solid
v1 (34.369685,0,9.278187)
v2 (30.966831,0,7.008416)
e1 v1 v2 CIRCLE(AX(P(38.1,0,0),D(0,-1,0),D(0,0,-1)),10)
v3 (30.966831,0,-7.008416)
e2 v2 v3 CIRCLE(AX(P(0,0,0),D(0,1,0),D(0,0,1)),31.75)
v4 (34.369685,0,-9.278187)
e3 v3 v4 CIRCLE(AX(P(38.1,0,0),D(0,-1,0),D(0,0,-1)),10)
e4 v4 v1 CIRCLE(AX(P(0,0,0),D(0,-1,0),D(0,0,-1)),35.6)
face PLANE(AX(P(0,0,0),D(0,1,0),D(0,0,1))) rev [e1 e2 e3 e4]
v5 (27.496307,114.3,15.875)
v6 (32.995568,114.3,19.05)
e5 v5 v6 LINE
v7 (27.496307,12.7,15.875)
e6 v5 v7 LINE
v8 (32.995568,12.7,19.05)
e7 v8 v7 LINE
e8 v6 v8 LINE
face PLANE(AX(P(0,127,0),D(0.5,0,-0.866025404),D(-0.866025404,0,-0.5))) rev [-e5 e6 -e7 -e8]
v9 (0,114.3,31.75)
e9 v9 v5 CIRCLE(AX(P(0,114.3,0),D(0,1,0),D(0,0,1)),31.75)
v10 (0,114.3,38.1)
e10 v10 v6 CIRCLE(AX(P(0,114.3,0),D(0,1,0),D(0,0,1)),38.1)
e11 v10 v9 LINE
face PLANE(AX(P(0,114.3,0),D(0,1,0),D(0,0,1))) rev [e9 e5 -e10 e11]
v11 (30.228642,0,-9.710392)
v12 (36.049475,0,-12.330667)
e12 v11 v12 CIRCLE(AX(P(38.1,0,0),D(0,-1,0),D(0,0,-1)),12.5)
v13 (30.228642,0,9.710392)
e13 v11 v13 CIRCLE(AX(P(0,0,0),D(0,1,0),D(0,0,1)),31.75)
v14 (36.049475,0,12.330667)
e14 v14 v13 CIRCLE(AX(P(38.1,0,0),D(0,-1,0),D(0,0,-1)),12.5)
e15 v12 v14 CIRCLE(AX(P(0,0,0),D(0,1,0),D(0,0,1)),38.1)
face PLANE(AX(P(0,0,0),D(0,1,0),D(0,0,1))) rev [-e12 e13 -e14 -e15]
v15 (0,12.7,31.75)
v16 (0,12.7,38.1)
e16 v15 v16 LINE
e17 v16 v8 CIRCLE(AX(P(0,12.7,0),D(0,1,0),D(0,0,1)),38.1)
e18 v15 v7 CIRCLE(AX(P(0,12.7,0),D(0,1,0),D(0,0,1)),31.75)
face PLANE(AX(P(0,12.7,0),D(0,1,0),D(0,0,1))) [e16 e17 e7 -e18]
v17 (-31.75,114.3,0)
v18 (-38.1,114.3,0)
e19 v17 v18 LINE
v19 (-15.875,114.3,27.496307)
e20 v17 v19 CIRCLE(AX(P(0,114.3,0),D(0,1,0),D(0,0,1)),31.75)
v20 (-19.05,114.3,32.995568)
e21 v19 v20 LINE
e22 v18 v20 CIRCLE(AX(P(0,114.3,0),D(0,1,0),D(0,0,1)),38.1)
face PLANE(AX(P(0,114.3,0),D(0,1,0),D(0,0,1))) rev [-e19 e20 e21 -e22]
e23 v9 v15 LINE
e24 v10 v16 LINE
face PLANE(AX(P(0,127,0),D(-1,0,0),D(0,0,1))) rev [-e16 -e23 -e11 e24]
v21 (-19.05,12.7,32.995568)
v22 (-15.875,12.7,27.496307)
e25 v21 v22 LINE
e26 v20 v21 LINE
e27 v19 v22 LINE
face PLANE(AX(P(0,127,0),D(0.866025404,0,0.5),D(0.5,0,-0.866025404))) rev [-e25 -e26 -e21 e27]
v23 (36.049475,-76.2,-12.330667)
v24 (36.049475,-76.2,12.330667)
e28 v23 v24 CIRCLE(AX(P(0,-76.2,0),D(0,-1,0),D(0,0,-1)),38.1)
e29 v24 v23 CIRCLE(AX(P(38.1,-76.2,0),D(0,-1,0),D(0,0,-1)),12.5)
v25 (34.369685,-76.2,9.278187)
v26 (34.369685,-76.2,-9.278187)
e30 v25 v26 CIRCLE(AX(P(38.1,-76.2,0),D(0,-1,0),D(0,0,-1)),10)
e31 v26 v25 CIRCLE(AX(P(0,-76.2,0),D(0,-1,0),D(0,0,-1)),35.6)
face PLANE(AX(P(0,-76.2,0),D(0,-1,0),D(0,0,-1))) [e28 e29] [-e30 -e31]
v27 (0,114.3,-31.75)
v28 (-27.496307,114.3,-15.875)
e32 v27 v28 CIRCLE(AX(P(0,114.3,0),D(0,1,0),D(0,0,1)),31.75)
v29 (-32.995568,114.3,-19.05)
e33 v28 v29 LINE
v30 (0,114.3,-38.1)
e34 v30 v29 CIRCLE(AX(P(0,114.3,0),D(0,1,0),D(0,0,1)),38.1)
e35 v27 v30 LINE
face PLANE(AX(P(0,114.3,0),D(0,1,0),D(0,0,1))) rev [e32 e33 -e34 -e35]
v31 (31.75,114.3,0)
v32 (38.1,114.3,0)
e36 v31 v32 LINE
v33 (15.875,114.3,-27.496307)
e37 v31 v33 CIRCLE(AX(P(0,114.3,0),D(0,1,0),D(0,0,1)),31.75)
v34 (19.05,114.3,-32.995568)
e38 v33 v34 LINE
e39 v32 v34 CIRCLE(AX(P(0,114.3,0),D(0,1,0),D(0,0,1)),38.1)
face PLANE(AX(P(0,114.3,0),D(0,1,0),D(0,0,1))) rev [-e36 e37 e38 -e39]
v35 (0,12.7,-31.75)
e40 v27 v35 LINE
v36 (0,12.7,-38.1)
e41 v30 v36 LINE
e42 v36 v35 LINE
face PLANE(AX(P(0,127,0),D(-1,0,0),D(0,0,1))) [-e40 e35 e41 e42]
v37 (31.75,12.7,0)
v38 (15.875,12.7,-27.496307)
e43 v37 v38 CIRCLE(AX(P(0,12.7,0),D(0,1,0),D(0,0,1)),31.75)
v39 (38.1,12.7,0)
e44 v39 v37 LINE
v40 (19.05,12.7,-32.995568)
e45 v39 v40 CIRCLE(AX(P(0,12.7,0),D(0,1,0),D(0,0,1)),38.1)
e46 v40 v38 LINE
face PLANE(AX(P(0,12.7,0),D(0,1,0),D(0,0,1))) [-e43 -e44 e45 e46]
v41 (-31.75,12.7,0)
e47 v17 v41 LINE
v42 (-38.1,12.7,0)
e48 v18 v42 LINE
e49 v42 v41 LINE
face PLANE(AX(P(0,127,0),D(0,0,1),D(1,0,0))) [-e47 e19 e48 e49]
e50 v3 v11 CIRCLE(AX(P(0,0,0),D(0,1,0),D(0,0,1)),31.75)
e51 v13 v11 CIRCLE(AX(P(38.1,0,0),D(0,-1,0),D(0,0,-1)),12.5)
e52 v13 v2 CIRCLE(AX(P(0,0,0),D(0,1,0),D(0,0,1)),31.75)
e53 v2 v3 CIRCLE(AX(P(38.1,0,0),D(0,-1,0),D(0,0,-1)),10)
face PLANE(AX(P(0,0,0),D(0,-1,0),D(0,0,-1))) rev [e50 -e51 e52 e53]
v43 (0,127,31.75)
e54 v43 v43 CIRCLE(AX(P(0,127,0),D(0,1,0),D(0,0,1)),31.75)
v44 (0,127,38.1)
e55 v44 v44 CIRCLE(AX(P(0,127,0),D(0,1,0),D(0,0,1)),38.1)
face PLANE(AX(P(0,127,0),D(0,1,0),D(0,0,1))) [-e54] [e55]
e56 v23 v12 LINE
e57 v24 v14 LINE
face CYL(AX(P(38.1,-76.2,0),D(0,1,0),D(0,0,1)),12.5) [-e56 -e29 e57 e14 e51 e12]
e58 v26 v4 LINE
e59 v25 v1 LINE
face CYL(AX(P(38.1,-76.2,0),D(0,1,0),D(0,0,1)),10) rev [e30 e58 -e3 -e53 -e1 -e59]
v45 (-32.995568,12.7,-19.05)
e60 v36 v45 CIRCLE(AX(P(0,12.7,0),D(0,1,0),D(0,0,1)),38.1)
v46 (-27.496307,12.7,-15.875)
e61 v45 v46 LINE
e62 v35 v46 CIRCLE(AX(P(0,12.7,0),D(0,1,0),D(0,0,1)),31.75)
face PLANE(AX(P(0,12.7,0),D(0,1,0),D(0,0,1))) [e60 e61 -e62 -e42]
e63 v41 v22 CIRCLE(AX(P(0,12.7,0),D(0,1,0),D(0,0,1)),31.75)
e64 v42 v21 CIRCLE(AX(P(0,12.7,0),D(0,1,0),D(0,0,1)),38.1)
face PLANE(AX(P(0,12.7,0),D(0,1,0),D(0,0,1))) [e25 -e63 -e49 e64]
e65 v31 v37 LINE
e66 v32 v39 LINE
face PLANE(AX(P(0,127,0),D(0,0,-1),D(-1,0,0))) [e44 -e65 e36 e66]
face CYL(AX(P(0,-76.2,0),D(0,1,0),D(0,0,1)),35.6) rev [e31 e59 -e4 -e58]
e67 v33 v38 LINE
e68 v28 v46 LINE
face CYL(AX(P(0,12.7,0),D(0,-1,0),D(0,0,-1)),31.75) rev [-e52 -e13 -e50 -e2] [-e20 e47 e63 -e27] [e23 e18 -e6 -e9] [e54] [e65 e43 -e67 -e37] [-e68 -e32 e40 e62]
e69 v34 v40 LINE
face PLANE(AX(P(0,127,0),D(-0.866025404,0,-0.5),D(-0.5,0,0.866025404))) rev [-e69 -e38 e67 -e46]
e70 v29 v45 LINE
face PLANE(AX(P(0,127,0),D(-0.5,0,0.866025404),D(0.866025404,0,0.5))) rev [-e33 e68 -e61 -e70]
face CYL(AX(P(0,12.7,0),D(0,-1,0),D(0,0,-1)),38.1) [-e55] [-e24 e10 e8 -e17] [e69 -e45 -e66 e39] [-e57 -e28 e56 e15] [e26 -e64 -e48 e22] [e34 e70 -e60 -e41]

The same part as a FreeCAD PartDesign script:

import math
import FreeCAD as App
import Part
import Sketcher
Q = App.Units.Quantity

doc = App.newDocument("Part")
params = doc.addObject("Spreadsheet::Sheet", "Params")
for row, (alias, value) in enumerate([
    ("sketch1_radius", "1.5 in"),
    ("sketch1_radius2", "1.25 in"),
    ("pad1_length", "0.5 in"),
    ("sketch2_radius", "1.5 in"),
    ("sketch2_radius2", "1.25 in"),
    ("pad2_length", "5 in"),
    ("sketch3_diameter", "3 in"),
    ("sketch3_diameter2", "2.5 in"),
    ("pad3_length", "0.5 in"),
    ("sketch4_radius", "1.5 in"),
    ("pad4_length", "3 in"),
], start=1):
    params.set(f"A{row}", alias)
    params.set(f"B{row}", "=" + value)
    params.setAlias(f"B{row}", alias)

body = doc.addObject("PartDesign::Body", "Body")

sketch1 = body.newObject("Sketcher::SketchObject", "Sketch")
sketch1.AttachmentSupport = (doc.getObject("XZ_Plane"), [""])
sketch1.MapMode = "FlatFace"
sketch1.addGeometry([
    Part.ArcOfCircle(Part.Circle(App.Vector(0, 0, 0), App.Vector(0, 0, 1), 38), math.radians(120), math.radians(180)),
    Part.ArcOfCircle(Part.Circle(App.Vector(0, 0, 0), App.Vector(0, 0, 1), 38), math.radians(90), math.radians(120)),
    Part.ArcOfCircle(Part.Circle(App.Vector(0, 0, 0), App.Vector(0, 0, 1), 38), math.radians(30), math.radians(90)),
    Part.ArcOfCircle(Part.Circle(App.Vector(0, 0, 0), App.Vector(0, 0, 1), 38), math.radians(0), math.radians(30)),
    Part.ArcOfCircle(Part.Circle(App.Vector(0, 0, 0), App.Vector(0, 0, 1), 38), math.radians(-60), math.radians(0)),
    Part.ArcOfCircle(Part.Circle(App.Vector(0, 0, 0), App.Vector(0, 0, 1), 38), math.radians(-90), math.radians(-60)),
    Part.ArcOfCircle(Part.Circle(App.Vector(0, 0, 0), App.Vector(0, 0, 1), 38), math.radians(-150), math.radians(-90)),
    Part.ArcOfCircle(Part.Circle(App.Vector(0, 0, 0), App.Vector(0, 0, 1), 38), math.radians(180), math.radians(210)),
    Part.ArcOfCircle(Part.Circle(App.Vector(0, 0, 0), App.Vector(0, 0, 1), 32), math.radians(-60), math.radians(0)),
    Part.ArcOfCircle(Part.Circle(App.Vector(0, 0, 0), App.Vector(0, 0, 1), 32), math.radians(0), math.radians(30)),
    Part.ArcOfCircle(Part.Circle(App.Vector(0, 0, 0), App.Vector(0, 0, 1), 32), math.radians(30), math.radians(90)),
    Part.ArcOfCircle(Part.Circle(App.Vector(0, 0, 0), App.Vector(0, 0, 1), 32), math.radians(90), math.radians(120)),
    Part.ArcOfCircle(Part.Circle(App.Vector(0, 0, 0), App.Vector(0, 0, 1), 32), math.radians(120), math.radians(180)),
    Part.ArcOfCircle(Part.Circle(App.Vector(0, 0, 0), App.Vector(0, 0, 1), 32), math.radians(180), math.radians(210)),
    Part.ArcOfCircle(Part.Circle(App.Vector(0, 0, 0), App.Vector(0, 0, 1), 32), math.radians(-150), math.radians(-90)),
    Part.ArcOfCircle(Part.Circle(App.Vector(0, 0, 0), App.Vector(0, 0, 1), 32), math.radians(-90), math.radians(-60)),
], False)
sketch1.addConstraint([
    Sketcher.Constraint("Tangent", 0, 1, 1, 2),
    Sketcher.Constraint("Tangent", 1, 1, 2, 2),
    Sketcher.Constraint("Tangent", 2, 1, 3, 2),
    Sketcher.Constraint("Tangent", 3, 1, 4, 2),
    Sketcher.Constraint("Tangent", 4, 1, 5, 2),
    Sketcher.Constraint("Tangent", 5, 1, 6, 2),
    Sketcher.Constraint("Tangent", 6, 1, 7, 2),
    Sketcher.Constraint("Tangent", 7, 1, 0, 2),
    Sketcher.Constraint("Tangent", 8, 2, 9, 1),
    Sketcher.Constraint("Tangent", 9, 2, 10, 1),
    Sketcher.Constraint("Tangent", 10, 2, 11, 1),
    Sketcher.Constraint("Tangent", 11, 2, 12, 1),
    Sketcher.Constraint("Tangent", 12, 2, 13, 1),
    Sketcher.Constraint("Tangent", 13, 2, 14, 1),
    Sketcher.Constraint("Tangent", 14, 2, 15, 1),
    Sketcher.Constraint("Tangent", 15, 2, 8, 1),
    Sketcher.Constraint("Coincident", 0, 3, -1, 1),
    Sketcher.Constraint("Coincident", 2, 3, -1, 1),
    Sketcher.Constraint("Coincident", 4, 3, -1, 1),
    Sketcher.Constraint("Coincident", 8, 3, -1, 1),
    Sketcher.Constraint("Coincident", 10, 3, -1, 1),
    Sketcher.Constraint("Coincident", 12, 3, -1, 1),
    Sketcher.Constraint("Equal", 4, 5),
    Sketcher.Constraint("Equal", 12, 13),
    Sketcher.Constraint("PointOnObject", 1, 1, -2),
    Sketcher.Constraint("PointOnObject", 3, 1, -1),
    Sketcher.Constraint("PointOnObject", 5, 1, -2),
    Sketcher.Constraint("PointOnObject", 7, 1, -1),
    Sketcher.Constraint("PointOnObject", 8, 2, -1),
    Sketcher.Constraint("PointOnObject", 10, 2, -2),
    Sketcher.Constraint("PointOnObject", 12, 2, -1),
    Sketcher.Constraint("PointOnObject", 14, 2, -2),
    Sketcher.Constraint("Radius", 0, Q("1.5 in")),
    Sketcher.Constraint("Radius", 8, Q("1.25 in")),
    Sketcher.Constraint("DistanceX", 0, 1, -1, 1, Q("0.75 in")),
    Sketcher.Constraint("DistanceY", -1, 1, 2, 1, Q("0.75 in")),
    Sketcher.Constraint("DistanceX", -1, 1, 4, 1, Q("0.75 in")),
    Sketcher.Constraint("DistanceY", 6, 1, -1, 1, Q("0.75 in")),
    Sketcher.Constraint("DistanceY", -1, 1, 9, 2, Q("0.625 in")),
    Sketcher.Constraint("DistanceX", 11, 2, -1, 1, Q("0.625 in")),
    Sketcher.Constraint("DistanceY", 13, 2, -1, 1, Q("0.625 in")),
    Sketcher.Constraint("DistanceX", -1, 1, 15, 2, Q("0.625 in")),
])
sketch1.setExpression("Constraints[32]", "Params.sketch1_radius")
sketch1.setExpression("Constraints[33]", "Params.sketch1_radius2")
pad1 = body.newObject("PartDesign::Pad", "Pad")
pad1.Profile = sketch1
pad1.setExpression("Length", "Params.pad1_length")
pad1.Reversed = True

sketch2 = body.newObject("Sketcher::SketchObject", "Sketch001")
sketch2.AttachmentSupport = (doc.getObject("XZ_Plane"), [""])
sketch2.MapMode = "FlatFace"
sketch2.addGeometry([
    Part.ArcOfCircle(Part.Circle(App.Vector(0, 0, 0), App.Vector(0, 0, 1), 38), math.radians(90), math.radians(120)),
    Part.LineSegment(App.Vector(0, 38, 0), App.Vector(0, 32, 0)),
    Part.ArcOfCircle(Part.Circle(App.Vector(0, 0, 0), App.Vector(0, 0, 1), 32), math.radians(90), math.radians(120)),
    Part.LineSegment(App.Vector(-16, 27, 0), App.Vector(-19, 33, 0)),
    Part.LineSegment(App.Vector(27, 16, 0), App.Vector(33, 19, 0)),
    Part.ArcOfCircle(Part.Circle(App.Vector(0, 0, 0), App.Vector(0, 0, 1), 38), math.radians(0), math.radians(30)),
    Part.LineSegment(App.Vector(38, 0, 0), App.Vector(32, 0, 0)),
    Part.ArcOfCircle(Part.Circle(App.Vector(0, 0, 0), App.Vector(0, 0, 1), 32), math.radians(0), math.radians(30)),
    Part.LineSegment(App.Vector(16, -27, 0), App.Vector(19, -33, 0)),
    Part.ArcOfCircle(Part.Circle(App.Vector(0, 0, 0), App.Vector(0, 0, 1), 38), math.radians(-90), math.radians(-60)),
    Part.LineSegment(App.Vector(0, -38, 0), App.Vector(0, -32, 0)),
    Part.ArcOfCircle(Part.Circle(App.Vector(0, 0, 0), App.Vector(0, 0, 1), 32), math.radians(-90), math.radians(-60)),
    Part.ArcOfCircle(Part.Circle(App.Vector(0, 0, 0), App.Vector(0, 0, 1), 38), math.radians(180), math.radians(210)),
    Part.LineSegment(App.Vector(-38, 0, 0), App.Vector(-32, 0, 0)),
    Part.ArcOfCircle(Part.Circle(App.Vector(0, 0, 0), App.Vector(0, 0, 1), 32), math.radians(180), math.radians(210)),
    Part.LineSegment(App.Vector(-27, -16, 0), App.Vector(-33, -19, 0)),
], False)
sketch2.addConstraint([
    Sketcher.Constraint("Coincident", 0, 1, 1, 1),
    Sketcher.Constraint("Coincident", 1, 2, 2, 1),
    Sketcher.Constraint("Coincident", 2, 2, 3, 1),
    Sketcher.Constraint("Coincident", 3, 2, 0, 2),
    Sketcher.Constraint("Coincident", 4, 2, 5, 2),
    Sketcher.Constraint("Coincident", 5, 1, 6, 1),
    Sketcher.Constraint("Coincident", 6, 2, 7, 1),
    Sketcher.Constraint("Coincident", 7, 2, 4, 1),
    Sketcher.Constraint("Coincident", 8, 2, 9, 2),
    Sketcher.Constraint("Coincident", 9, 1, 10, 1),
    Sketcher.Constraint("Coincident", 10, 2, 11, 1),
    Sketcher.Constraint("Coincident", 11, 2, 8, 1),
    Sketcher.Constraint("Coincident", 12, 1, 13, 1),
    Sketcher.Constraint("Coincident", 13, 2, 14, 1),
    Sketcher.Constraint("Coincident", 14, 2, 15, 1),
    Sketcher.Constraint("Coincident", 15, 2, 12, 2),
    Sketcher.Constraint("Vertical", 1),
    Sketcher.Constraint("Horizontal", 6),
    Sketcher.Constraint("Vertical", 10),
    Sketcher.Constraint("Horizontal", 13),
    Sketcher.Constraint("Coincident", 0, 3, -1, 1),
    Sketcher.Constraint("Coincident", 2, 3, -1, 1),
    Sketcher.Constraint("Coincident", 5, 3, -1, 1),
    Sketcher.Constraint("Coincident", 7, 3, -1, 1),
    Sketcher.Constraint("Coincident", 9, 3, -1, 1),
    Sketcher.Constraint("Coincident", 11, 3, -1, 1),
    Sketcher.Constraint("Coincident", 12, 3, -1, 1),
    Sketcher.Constraint("Coincident", 14, 3, -1, 1),
    Sketcher.Constraint("Equal", 0, 5),
    Sketcher.Constraint("Equal", 2, 7),
    Sketcher.Constraint("Equal", 5, 9),
    Sketcher.Constraint("Equal", 7, 11),
    Sketcher.Constraint("Equal", 9, 12),
    Sketcher.Constraint("Equal", 11, 14),
    Sketcher.Constraint("PointOnObject", 0, 1, -2),
    Sketcher.Constraint("PointOnObject", 5, 1, -1),
    Sketcher.Constraint("PointOnObject", 9, 1, -2),
    Sketcher.Constraint("PointOnObject", 12, 1, -1),
    Sketcher.Constraint("Perpendicular", 3, 4),
    Sketcher.Constraint("Perpendicular", 4, 8),
    Sketcher.Constraint("Perpendicular", 8, 15),
    Sketcher.Constraint("Radius", 0, Q("1.5 in")),
    Sketcher.Constraint("Radius", 2, Q("1.25 in")),
    Sketcher.Constraint("Angle", 3, Q("120 deg")),
    Sketcher.Constraint("DistanceY", 4, 2, 1, 2, Q("0.5 in")),
    Sketcher.Constraint("DistanceX", 8, 2, 6, 2, Q("0.5 in")),
    Sketcher.Constraint("DistanceY", 10, 2, 15, 2, Q("0.5 in")),
    Sketcher.Constraint("DistanceX", 3, 2, -1, 1, Q("0.75 in")),
])
sketch2.setExpression("Constraints[41]", "Params.sketch2_radius")
sketch2.setExpression("Constraints[42]", "Params.sketch2_radius2")
pad2 = body.newObject("PartDesign::Pad", "Pad001")
pad2.Profile = sketch2
pad2.setExpression("Length", "Params.pad2_length")
pad2.Reversed = True

sketch3 = body.newObject("Sketcher::SketchObject", "Sketch002")
sketch3.AttachmentSupport = (doc.getObject("XZ_Plane"), [""])
sketch3.MapMode = "FlatFace"
sketch3.AttachmentOffset = App.Placement(App.Vector(0, 0, -4.5 * 25.4), App.Rotation())
sketch3.addGeometry([
    Part.Circle(App.Vector(0, 0, 0), App.Vector(0, 0, 1), 38),
    Part.Circle(App.Vector(0, 0, 0), App.Vector(0, 0, 1), 32),
], False)
sketch3.addConstraint([
    Sketcher.Constraint("Coincident", 0, 3, -1, 1),
    Sketcher.Constraint("Coincident", 1, 3, -1, 1),
    Sketcher.Constraint("Diameter", 0, Q("3 in")),
    Sketcher.Constraint("Diameter", 1, Q("2.5 in")),
])
sketch3.setExpression("Constraints[2]", "Params.sketch3_diameter")
sketch3.setExpression("Constraints[3]", "Params.sketch3_diameter2")
pad3 = body.newObject("PartDesign::Pad", "Pad002")
pad3.Profile = sketch3
pad3.setExpression("Length", "Params.pad3_length")
pad3.Reversed = True

sketch4 = body.newObject("Sketcher::SketchObject", "Sketch003")
sketch4.AttachmentSupport = (doc.getObject("XZ_Plane"), [""])
sketch4.MapMode = "FlatFace"
sketch4.AttachmentOffset = App.Placement(App.Vector(0, 0, 3 * 25.4), App.Rotation())
sketch4.addGeometry([
    Part.ArcOfCircle(Part.Circle(App.Vector(38, 0, 0), App.Vector(0, 0, 1), 12), math.radians(99), math.radians(261)),
    Part.ArcOfCircle(Part.Circle(App.Vector(0, 0, 0), App.Vector(0, 0, 1), 38), math.radians(-19), math.radians(19)),
    Part.ArcOfCircle(Part.Circle(App.Vector(38, 0, 0), App.Vector(0, 0, 1), 10), math.radians(112), math.radians(248)),
    Part.ArcOfCircle(Part.Circle(App.Vector(0, 0, 0), App.Vector(0, 0, 1), 36), math.radians(-15), math.radians(15)),
], False)
sketch4.addConstraint([
    Sketcher.Constraint("Coincident", 0, 1, 1, 2),
    Sketcher.Constraint("Coincident", 1, 1, 0, 2),
    Sketcher.Constraint("Coincident", 2, 1, 3, 2),
    Sketcher.Constraint("Coincident", 3, 1, 2, 2),
    Sketcher.Constraint("Coincident", 1, 3, -1, 1),
    Sketcher.Constraint("Coincident", 3, 3, -1, 1),
    Sketcher.Constraint("Coincident", 2, 3, 0, 3),
    Sketcher.Constraint("PointOnObject", 0, 3, -1),
    Sketcher.Constraint("Radius", 1, Q("1.5 in")),
    Sketcher.Constraint("DistanceX", -1, 1, 0, 3, Q("1.5 in")),
    Sketcher.Constraint("Radius", 0, 12.5),
    Sketcher.Constraint("Radius", 2, 10.0),
    Sketcher.Constraint("Radius", 3, 35.6),
])
sketch4.setExpression("Constraints[8]", "Params.sketch4_radius")
pad4 = body.newObject("PartDesign::Pad", "Pad003")
pad4.Profile = sketch4
pad4.setExpression("Length", "Params.pad4_length")
pad4.Reversed = True

doc.recompute()
